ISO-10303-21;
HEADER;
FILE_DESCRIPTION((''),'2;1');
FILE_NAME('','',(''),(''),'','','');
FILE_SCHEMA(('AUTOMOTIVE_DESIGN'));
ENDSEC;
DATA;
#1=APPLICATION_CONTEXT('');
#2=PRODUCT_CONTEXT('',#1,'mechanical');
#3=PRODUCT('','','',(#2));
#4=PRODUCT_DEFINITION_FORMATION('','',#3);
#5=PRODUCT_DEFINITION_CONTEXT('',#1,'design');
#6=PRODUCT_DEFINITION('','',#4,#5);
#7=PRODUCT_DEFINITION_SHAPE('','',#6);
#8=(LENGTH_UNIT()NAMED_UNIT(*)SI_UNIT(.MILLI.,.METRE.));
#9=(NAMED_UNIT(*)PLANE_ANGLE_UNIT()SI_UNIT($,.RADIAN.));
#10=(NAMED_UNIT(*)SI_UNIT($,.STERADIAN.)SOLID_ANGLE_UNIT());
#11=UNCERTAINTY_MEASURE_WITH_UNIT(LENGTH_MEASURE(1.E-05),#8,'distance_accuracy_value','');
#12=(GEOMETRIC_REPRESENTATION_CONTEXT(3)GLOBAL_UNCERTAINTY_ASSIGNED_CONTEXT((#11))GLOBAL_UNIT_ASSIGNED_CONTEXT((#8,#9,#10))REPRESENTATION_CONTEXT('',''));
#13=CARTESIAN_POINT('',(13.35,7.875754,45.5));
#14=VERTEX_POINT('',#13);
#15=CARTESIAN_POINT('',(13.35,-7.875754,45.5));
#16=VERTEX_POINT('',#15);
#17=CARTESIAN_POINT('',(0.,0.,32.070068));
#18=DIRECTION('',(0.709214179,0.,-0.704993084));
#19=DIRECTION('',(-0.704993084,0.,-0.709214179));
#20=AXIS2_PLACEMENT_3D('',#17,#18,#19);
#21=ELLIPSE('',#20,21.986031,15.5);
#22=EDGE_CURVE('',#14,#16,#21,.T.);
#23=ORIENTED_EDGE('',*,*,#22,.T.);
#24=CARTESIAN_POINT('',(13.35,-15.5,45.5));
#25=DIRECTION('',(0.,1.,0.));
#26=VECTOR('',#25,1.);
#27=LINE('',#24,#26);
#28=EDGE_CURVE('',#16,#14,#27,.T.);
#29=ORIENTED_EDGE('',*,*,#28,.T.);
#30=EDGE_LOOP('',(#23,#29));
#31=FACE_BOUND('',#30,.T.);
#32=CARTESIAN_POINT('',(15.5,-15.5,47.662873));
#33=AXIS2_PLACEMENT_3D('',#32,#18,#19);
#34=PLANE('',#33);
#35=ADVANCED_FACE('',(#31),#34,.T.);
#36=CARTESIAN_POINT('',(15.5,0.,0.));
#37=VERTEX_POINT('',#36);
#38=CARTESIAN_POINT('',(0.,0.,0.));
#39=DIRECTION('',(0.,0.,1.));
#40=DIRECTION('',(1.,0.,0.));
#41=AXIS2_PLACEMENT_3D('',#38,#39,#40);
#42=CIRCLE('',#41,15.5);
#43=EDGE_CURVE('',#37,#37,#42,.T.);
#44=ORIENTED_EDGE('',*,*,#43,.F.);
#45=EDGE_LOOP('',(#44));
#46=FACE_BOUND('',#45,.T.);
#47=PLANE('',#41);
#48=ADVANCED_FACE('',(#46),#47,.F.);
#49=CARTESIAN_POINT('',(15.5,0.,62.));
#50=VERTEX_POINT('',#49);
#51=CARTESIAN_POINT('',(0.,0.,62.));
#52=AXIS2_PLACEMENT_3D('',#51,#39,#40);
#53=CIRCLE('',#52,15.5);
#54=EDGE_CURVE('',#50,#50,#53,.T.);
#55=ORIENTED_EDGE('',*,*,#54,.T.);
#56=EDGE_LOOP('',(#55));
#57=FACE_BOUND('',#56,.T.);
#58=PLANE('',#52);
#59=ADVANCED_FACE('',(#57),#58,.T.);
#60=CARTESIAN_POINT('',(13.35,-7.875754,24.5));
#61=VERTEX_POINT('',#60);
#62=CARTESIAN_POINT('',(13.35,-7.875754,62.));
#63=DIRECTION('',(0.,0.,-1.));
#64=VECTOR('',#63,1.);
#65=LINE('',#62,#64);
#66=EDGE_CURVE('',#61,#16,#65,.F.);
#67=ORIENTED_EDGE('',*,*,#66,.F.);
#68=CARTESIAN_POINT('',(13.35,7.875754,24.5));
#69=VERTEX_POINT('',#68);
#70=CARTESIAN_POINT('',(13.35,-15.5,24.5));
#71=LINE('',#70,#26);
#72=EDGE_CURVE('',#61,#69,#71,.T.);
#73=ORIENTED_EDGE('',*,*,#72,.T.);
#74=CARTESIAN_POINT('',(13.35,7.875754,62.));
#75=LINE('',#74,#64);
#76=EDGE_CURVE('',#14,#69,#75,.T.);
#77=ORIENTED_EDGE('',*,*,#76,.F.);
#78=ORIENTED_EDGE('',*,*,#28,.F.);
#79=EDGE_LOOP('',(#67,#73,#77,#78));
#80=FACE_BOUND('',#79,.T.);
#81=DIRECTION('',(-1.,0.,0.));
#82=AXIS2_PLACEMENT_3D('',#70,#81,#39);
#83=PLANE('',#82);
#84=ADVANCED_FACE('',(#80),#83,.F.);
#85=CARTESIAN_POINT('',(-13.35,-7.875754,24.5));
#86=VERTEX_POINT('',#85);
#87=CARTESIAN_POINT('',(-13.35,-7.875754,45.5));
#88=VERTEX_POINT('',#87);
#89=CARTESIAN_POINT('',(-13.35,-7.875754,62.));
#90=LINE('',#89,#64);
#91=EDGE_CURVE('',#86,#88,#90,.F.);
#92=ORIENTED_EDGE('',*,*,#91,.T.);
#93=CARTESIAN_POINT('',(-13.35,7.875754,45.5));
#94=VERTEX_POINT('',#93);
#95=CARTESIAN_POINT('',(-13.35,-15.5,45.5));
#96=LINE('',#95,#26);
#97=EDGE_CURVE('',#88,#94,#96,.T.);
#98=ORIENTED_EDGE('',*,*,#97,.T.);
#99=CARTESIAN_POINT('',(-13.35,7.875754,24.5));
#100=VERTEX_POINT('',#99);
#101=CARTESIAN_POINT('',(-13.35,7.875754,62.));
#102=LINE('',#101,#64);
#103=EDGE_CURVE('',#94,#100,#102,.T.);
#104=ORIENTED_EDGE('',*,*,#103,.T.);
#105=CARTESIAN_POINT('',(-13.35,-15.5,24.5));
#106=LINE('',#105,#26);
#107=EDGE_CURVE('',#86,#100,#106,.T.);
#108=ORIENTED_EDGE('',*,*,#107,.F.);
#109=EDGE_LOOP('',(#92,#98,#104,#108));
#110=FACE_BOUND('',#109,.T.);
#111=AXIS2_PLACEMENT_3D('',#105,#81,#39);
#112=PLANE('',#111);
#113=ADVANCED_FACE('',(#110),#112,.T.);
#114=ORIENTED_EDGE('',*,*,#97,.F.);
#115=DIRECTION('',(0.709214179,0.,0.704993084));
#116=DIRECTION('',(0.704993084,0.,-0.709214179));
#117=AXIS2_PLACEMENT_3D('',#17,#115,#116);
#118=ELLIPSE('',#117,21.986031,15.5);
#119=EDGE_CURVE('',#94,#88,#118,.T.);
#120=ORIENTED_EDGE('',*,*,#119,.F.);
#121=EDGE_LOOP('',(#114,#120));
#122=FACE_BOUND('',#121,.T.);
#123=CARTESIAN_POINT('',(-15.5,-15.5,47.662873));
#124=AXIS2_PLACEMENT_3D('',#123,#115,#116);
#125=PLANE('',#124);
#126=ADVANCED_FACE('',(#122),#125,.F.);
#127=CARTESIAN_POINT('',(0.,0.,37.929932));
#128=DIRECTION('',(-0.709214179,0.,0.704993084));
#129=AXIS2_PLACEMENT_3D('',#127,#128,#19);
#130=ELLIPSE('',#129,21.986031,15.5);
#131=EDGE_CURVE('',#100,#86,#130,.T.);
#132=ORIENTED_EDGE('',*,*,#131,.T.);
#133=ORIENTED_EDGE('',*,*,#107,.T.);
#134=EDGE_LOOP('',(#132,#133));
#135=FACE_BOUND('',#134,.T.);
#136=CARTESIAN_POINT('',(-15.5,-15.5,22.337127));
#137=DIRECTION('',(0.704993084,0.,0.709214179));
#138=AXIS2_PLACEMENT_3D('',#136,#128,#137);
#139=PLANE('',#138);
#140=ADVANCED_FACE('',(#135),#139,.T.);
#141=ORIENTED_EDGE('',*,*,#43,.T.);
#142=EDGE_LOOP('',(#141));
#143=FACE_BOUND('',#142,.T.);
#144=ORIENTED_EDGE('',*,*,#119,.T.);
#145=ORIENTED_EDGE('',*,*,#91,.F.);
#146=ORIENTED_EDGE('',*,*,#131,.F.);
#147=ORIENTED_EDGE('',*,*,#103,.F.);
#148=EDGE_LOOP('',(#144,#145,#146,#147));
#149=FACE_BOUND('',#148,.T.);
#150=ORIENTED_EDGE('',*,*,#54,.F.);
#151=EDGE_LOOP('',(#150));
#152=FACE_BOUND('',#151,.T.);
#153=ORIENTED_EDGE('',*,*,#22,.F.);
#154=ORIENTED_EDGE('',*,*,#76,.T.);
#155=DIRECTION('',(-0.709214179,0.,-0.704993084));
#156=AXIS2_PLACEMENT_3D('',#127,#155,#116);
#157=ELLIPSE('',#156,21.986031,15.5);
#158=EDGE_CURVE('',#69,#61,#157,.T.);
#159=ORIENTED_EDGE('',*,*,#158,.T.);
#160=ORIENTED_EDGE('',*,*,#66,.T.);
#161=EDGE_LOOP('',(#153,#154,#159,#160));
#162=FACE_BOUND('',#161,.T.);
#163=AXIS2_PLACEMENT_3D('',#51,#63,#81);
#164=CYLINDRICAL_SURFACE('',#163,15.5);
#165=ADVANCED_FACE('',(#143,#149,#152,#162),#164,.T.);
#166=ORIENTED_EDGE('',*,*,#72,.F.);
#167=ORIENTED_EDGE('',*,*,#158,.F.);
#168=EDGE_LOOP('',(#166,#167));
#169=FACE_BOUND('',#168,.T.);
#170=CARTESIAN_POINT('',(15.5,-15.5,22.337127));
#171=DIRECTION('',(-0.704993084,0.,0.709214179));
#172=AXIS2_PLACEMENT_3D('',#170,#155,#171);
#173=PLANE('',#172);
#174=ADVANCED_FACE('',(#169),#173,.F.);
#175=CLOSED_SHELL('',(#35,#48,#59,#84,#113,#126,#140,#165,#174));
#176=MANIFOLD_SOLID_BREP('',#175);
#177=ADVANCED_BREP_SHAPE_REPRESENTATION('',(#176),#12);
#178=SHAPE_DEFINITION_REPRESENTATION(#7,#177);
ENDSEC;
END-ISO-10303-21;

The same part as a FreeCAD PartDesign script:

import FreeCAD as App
import Part
import Sketcher

V = App.Vector
Q = App.Units.Quantity

doc = App.newDocument("Part")
body = doc.addObject("PartDesign::Body", "Body")

# Sketch on XY plane
sketch1 = body.newObject("Sketcher::SketchObject", "Sketch")
sketch1.AttachmentSupport = (doc.getObject("XY_Plane"), [""])
sketch1.MapMode = "FlatFace"
sketch1.addGeometry(Part.Circle(V(0, 0, 0), V(0, 0, 1), 16), False)
sketch1.addConstraint(Sketcher.Constraint("Coincident", 0, 3, -1, 1))
sketch1.addConstraint(Sketcher.Constraint("Diameter", 0, Q("31 mm")))
pad1 = body.newObject("PartDesign::Pad", "Pad")
pad1.Profile = sketch1
pad1.Length = 62

# Sketch on XZ plane
sketch2 = body.newObject("Sketcher::SketchObject", "Sketch001")
sketch2.AttachmentSupport = (doc.getObject("XZ_Plane"), [""])
sketch2.MapMode = "FlatFace"
sketch2.addGeometry(Part.LineSegment(V(-13.3, 24.5, 0), V(-15.5, 22.3, 0)), False)
sketch2.addGeometry(Part.LineSegment(V(-15.5, 22.3, 0), V(-15.5, 47.7, 0)), False)
sketch2.addGeometry(Part.LineSegment(V(-15.5, 47.7, 0), V(-13.3, 45.5, 0)), False)
sketch2.addGeometry(Part.LineSegment(V(-13.3, 45.5, 0), V(-13.3, 24.5, 0)), False)
sketch2.addGeometry(Part.LineSegment(V(13.3, 45.5, 0), V(15.5, 47.7, 0)), False)
sketch2.addGeometry(Part.LineSegment(V(15.5, 47.7, 0), V(15.5, 22.3, 0)), False)
sketch2.addGeometry(Part.LineSegment(V(15.5, 22.3, 0), V(13.3, 24.5, 0)), False)
sketch2.addGeometry(Part.LineSegment(V(13.3, 24.5, 0), V(13.3, 45.5, 0)), False)
sketch2.addConstraint(Sketcher.Constraint("Coincident", 0, 2, 1, 1))
sketch2.addConstraint(Sketcher.Constraint("Coincident", 1, 2, 2, 1))
sketch2.addConstraint(Sketcher.Constraint("Coincident", 2, 2, 3, 1))
sketch2.addConstraint(Sketcher.Constraint("Coincident", 3, 2, 0, 1))
sketch2.addConstraint(Sketcher.Constraint("Coincident", 4, 2, 5, 1))
sketch2.addConstraint(Sketcher.Constraint("Coincident", 5, 2, 6, 1))
sketch2.addConstraint(Sketcher.Constraint("Coincident", 6, 2, 7, 1))
sketch2.addConstraint(Sketcher.Constraint("Coincident", 7, 2, 4, 1))
sketch2.addConstraint(Sketcher.Constraint("Vertical", 1))
sketch2.addConstraint(Sketcher.Constraint("Vertical", 3))
sketch2.addConstraint(Sketcher.Constraint("Vertical", 5))
sketch2.addConstraint(Sketcher.Constraint("Vertical", 7))
sketch2.addConstraint(Sketcher.Constraint("Symmetric", 1, 2, 4, 2, -2))
sketch2.addConstraint(Sketcher.Constraint("Symmetric", 3, 2, 6, 2, -2))
sketch2.addConstraint(Sketcher.Constraint("Parallel", 0, 4))
sketch2.addConstraint(Sketcher.Constraint("Parallel", 2, 6))
sketch2.addConstraint(Sketcher.Constraint("Horizontal", 0, 2, 5, 2))
sketch2.addConstraint(Sketcher.Constraint("DistanceY", 3, 2, 3, 1, Q("21 mm")))
sketch2.addConstraint(Sketcher.Constraint("DistanceX", 1, 2, 4, 2, Q("31 mm")))
sketch2.addConstraint(Sketcher.Constraint("DistanceY", -1, 1, 2, 2, Q("45.5 mm")))
sketch2.addConstraint(Sketcher.Constraint("DistanceX", 3, 2, 6, 2, Q("26.7 mm")))
sketch2.addConstraint(Sketcher.Constraint("DistanceY", 1, 1, 1, 2, Q("25.325746 mm")))
pocket1 = body.newObject("PartDesign::Pocket", "Pocket")
pocket1.Profile = sketch2
pocket1.Type = "ThroughAll"
pocket1.Midplane = True

doc.recompute()
